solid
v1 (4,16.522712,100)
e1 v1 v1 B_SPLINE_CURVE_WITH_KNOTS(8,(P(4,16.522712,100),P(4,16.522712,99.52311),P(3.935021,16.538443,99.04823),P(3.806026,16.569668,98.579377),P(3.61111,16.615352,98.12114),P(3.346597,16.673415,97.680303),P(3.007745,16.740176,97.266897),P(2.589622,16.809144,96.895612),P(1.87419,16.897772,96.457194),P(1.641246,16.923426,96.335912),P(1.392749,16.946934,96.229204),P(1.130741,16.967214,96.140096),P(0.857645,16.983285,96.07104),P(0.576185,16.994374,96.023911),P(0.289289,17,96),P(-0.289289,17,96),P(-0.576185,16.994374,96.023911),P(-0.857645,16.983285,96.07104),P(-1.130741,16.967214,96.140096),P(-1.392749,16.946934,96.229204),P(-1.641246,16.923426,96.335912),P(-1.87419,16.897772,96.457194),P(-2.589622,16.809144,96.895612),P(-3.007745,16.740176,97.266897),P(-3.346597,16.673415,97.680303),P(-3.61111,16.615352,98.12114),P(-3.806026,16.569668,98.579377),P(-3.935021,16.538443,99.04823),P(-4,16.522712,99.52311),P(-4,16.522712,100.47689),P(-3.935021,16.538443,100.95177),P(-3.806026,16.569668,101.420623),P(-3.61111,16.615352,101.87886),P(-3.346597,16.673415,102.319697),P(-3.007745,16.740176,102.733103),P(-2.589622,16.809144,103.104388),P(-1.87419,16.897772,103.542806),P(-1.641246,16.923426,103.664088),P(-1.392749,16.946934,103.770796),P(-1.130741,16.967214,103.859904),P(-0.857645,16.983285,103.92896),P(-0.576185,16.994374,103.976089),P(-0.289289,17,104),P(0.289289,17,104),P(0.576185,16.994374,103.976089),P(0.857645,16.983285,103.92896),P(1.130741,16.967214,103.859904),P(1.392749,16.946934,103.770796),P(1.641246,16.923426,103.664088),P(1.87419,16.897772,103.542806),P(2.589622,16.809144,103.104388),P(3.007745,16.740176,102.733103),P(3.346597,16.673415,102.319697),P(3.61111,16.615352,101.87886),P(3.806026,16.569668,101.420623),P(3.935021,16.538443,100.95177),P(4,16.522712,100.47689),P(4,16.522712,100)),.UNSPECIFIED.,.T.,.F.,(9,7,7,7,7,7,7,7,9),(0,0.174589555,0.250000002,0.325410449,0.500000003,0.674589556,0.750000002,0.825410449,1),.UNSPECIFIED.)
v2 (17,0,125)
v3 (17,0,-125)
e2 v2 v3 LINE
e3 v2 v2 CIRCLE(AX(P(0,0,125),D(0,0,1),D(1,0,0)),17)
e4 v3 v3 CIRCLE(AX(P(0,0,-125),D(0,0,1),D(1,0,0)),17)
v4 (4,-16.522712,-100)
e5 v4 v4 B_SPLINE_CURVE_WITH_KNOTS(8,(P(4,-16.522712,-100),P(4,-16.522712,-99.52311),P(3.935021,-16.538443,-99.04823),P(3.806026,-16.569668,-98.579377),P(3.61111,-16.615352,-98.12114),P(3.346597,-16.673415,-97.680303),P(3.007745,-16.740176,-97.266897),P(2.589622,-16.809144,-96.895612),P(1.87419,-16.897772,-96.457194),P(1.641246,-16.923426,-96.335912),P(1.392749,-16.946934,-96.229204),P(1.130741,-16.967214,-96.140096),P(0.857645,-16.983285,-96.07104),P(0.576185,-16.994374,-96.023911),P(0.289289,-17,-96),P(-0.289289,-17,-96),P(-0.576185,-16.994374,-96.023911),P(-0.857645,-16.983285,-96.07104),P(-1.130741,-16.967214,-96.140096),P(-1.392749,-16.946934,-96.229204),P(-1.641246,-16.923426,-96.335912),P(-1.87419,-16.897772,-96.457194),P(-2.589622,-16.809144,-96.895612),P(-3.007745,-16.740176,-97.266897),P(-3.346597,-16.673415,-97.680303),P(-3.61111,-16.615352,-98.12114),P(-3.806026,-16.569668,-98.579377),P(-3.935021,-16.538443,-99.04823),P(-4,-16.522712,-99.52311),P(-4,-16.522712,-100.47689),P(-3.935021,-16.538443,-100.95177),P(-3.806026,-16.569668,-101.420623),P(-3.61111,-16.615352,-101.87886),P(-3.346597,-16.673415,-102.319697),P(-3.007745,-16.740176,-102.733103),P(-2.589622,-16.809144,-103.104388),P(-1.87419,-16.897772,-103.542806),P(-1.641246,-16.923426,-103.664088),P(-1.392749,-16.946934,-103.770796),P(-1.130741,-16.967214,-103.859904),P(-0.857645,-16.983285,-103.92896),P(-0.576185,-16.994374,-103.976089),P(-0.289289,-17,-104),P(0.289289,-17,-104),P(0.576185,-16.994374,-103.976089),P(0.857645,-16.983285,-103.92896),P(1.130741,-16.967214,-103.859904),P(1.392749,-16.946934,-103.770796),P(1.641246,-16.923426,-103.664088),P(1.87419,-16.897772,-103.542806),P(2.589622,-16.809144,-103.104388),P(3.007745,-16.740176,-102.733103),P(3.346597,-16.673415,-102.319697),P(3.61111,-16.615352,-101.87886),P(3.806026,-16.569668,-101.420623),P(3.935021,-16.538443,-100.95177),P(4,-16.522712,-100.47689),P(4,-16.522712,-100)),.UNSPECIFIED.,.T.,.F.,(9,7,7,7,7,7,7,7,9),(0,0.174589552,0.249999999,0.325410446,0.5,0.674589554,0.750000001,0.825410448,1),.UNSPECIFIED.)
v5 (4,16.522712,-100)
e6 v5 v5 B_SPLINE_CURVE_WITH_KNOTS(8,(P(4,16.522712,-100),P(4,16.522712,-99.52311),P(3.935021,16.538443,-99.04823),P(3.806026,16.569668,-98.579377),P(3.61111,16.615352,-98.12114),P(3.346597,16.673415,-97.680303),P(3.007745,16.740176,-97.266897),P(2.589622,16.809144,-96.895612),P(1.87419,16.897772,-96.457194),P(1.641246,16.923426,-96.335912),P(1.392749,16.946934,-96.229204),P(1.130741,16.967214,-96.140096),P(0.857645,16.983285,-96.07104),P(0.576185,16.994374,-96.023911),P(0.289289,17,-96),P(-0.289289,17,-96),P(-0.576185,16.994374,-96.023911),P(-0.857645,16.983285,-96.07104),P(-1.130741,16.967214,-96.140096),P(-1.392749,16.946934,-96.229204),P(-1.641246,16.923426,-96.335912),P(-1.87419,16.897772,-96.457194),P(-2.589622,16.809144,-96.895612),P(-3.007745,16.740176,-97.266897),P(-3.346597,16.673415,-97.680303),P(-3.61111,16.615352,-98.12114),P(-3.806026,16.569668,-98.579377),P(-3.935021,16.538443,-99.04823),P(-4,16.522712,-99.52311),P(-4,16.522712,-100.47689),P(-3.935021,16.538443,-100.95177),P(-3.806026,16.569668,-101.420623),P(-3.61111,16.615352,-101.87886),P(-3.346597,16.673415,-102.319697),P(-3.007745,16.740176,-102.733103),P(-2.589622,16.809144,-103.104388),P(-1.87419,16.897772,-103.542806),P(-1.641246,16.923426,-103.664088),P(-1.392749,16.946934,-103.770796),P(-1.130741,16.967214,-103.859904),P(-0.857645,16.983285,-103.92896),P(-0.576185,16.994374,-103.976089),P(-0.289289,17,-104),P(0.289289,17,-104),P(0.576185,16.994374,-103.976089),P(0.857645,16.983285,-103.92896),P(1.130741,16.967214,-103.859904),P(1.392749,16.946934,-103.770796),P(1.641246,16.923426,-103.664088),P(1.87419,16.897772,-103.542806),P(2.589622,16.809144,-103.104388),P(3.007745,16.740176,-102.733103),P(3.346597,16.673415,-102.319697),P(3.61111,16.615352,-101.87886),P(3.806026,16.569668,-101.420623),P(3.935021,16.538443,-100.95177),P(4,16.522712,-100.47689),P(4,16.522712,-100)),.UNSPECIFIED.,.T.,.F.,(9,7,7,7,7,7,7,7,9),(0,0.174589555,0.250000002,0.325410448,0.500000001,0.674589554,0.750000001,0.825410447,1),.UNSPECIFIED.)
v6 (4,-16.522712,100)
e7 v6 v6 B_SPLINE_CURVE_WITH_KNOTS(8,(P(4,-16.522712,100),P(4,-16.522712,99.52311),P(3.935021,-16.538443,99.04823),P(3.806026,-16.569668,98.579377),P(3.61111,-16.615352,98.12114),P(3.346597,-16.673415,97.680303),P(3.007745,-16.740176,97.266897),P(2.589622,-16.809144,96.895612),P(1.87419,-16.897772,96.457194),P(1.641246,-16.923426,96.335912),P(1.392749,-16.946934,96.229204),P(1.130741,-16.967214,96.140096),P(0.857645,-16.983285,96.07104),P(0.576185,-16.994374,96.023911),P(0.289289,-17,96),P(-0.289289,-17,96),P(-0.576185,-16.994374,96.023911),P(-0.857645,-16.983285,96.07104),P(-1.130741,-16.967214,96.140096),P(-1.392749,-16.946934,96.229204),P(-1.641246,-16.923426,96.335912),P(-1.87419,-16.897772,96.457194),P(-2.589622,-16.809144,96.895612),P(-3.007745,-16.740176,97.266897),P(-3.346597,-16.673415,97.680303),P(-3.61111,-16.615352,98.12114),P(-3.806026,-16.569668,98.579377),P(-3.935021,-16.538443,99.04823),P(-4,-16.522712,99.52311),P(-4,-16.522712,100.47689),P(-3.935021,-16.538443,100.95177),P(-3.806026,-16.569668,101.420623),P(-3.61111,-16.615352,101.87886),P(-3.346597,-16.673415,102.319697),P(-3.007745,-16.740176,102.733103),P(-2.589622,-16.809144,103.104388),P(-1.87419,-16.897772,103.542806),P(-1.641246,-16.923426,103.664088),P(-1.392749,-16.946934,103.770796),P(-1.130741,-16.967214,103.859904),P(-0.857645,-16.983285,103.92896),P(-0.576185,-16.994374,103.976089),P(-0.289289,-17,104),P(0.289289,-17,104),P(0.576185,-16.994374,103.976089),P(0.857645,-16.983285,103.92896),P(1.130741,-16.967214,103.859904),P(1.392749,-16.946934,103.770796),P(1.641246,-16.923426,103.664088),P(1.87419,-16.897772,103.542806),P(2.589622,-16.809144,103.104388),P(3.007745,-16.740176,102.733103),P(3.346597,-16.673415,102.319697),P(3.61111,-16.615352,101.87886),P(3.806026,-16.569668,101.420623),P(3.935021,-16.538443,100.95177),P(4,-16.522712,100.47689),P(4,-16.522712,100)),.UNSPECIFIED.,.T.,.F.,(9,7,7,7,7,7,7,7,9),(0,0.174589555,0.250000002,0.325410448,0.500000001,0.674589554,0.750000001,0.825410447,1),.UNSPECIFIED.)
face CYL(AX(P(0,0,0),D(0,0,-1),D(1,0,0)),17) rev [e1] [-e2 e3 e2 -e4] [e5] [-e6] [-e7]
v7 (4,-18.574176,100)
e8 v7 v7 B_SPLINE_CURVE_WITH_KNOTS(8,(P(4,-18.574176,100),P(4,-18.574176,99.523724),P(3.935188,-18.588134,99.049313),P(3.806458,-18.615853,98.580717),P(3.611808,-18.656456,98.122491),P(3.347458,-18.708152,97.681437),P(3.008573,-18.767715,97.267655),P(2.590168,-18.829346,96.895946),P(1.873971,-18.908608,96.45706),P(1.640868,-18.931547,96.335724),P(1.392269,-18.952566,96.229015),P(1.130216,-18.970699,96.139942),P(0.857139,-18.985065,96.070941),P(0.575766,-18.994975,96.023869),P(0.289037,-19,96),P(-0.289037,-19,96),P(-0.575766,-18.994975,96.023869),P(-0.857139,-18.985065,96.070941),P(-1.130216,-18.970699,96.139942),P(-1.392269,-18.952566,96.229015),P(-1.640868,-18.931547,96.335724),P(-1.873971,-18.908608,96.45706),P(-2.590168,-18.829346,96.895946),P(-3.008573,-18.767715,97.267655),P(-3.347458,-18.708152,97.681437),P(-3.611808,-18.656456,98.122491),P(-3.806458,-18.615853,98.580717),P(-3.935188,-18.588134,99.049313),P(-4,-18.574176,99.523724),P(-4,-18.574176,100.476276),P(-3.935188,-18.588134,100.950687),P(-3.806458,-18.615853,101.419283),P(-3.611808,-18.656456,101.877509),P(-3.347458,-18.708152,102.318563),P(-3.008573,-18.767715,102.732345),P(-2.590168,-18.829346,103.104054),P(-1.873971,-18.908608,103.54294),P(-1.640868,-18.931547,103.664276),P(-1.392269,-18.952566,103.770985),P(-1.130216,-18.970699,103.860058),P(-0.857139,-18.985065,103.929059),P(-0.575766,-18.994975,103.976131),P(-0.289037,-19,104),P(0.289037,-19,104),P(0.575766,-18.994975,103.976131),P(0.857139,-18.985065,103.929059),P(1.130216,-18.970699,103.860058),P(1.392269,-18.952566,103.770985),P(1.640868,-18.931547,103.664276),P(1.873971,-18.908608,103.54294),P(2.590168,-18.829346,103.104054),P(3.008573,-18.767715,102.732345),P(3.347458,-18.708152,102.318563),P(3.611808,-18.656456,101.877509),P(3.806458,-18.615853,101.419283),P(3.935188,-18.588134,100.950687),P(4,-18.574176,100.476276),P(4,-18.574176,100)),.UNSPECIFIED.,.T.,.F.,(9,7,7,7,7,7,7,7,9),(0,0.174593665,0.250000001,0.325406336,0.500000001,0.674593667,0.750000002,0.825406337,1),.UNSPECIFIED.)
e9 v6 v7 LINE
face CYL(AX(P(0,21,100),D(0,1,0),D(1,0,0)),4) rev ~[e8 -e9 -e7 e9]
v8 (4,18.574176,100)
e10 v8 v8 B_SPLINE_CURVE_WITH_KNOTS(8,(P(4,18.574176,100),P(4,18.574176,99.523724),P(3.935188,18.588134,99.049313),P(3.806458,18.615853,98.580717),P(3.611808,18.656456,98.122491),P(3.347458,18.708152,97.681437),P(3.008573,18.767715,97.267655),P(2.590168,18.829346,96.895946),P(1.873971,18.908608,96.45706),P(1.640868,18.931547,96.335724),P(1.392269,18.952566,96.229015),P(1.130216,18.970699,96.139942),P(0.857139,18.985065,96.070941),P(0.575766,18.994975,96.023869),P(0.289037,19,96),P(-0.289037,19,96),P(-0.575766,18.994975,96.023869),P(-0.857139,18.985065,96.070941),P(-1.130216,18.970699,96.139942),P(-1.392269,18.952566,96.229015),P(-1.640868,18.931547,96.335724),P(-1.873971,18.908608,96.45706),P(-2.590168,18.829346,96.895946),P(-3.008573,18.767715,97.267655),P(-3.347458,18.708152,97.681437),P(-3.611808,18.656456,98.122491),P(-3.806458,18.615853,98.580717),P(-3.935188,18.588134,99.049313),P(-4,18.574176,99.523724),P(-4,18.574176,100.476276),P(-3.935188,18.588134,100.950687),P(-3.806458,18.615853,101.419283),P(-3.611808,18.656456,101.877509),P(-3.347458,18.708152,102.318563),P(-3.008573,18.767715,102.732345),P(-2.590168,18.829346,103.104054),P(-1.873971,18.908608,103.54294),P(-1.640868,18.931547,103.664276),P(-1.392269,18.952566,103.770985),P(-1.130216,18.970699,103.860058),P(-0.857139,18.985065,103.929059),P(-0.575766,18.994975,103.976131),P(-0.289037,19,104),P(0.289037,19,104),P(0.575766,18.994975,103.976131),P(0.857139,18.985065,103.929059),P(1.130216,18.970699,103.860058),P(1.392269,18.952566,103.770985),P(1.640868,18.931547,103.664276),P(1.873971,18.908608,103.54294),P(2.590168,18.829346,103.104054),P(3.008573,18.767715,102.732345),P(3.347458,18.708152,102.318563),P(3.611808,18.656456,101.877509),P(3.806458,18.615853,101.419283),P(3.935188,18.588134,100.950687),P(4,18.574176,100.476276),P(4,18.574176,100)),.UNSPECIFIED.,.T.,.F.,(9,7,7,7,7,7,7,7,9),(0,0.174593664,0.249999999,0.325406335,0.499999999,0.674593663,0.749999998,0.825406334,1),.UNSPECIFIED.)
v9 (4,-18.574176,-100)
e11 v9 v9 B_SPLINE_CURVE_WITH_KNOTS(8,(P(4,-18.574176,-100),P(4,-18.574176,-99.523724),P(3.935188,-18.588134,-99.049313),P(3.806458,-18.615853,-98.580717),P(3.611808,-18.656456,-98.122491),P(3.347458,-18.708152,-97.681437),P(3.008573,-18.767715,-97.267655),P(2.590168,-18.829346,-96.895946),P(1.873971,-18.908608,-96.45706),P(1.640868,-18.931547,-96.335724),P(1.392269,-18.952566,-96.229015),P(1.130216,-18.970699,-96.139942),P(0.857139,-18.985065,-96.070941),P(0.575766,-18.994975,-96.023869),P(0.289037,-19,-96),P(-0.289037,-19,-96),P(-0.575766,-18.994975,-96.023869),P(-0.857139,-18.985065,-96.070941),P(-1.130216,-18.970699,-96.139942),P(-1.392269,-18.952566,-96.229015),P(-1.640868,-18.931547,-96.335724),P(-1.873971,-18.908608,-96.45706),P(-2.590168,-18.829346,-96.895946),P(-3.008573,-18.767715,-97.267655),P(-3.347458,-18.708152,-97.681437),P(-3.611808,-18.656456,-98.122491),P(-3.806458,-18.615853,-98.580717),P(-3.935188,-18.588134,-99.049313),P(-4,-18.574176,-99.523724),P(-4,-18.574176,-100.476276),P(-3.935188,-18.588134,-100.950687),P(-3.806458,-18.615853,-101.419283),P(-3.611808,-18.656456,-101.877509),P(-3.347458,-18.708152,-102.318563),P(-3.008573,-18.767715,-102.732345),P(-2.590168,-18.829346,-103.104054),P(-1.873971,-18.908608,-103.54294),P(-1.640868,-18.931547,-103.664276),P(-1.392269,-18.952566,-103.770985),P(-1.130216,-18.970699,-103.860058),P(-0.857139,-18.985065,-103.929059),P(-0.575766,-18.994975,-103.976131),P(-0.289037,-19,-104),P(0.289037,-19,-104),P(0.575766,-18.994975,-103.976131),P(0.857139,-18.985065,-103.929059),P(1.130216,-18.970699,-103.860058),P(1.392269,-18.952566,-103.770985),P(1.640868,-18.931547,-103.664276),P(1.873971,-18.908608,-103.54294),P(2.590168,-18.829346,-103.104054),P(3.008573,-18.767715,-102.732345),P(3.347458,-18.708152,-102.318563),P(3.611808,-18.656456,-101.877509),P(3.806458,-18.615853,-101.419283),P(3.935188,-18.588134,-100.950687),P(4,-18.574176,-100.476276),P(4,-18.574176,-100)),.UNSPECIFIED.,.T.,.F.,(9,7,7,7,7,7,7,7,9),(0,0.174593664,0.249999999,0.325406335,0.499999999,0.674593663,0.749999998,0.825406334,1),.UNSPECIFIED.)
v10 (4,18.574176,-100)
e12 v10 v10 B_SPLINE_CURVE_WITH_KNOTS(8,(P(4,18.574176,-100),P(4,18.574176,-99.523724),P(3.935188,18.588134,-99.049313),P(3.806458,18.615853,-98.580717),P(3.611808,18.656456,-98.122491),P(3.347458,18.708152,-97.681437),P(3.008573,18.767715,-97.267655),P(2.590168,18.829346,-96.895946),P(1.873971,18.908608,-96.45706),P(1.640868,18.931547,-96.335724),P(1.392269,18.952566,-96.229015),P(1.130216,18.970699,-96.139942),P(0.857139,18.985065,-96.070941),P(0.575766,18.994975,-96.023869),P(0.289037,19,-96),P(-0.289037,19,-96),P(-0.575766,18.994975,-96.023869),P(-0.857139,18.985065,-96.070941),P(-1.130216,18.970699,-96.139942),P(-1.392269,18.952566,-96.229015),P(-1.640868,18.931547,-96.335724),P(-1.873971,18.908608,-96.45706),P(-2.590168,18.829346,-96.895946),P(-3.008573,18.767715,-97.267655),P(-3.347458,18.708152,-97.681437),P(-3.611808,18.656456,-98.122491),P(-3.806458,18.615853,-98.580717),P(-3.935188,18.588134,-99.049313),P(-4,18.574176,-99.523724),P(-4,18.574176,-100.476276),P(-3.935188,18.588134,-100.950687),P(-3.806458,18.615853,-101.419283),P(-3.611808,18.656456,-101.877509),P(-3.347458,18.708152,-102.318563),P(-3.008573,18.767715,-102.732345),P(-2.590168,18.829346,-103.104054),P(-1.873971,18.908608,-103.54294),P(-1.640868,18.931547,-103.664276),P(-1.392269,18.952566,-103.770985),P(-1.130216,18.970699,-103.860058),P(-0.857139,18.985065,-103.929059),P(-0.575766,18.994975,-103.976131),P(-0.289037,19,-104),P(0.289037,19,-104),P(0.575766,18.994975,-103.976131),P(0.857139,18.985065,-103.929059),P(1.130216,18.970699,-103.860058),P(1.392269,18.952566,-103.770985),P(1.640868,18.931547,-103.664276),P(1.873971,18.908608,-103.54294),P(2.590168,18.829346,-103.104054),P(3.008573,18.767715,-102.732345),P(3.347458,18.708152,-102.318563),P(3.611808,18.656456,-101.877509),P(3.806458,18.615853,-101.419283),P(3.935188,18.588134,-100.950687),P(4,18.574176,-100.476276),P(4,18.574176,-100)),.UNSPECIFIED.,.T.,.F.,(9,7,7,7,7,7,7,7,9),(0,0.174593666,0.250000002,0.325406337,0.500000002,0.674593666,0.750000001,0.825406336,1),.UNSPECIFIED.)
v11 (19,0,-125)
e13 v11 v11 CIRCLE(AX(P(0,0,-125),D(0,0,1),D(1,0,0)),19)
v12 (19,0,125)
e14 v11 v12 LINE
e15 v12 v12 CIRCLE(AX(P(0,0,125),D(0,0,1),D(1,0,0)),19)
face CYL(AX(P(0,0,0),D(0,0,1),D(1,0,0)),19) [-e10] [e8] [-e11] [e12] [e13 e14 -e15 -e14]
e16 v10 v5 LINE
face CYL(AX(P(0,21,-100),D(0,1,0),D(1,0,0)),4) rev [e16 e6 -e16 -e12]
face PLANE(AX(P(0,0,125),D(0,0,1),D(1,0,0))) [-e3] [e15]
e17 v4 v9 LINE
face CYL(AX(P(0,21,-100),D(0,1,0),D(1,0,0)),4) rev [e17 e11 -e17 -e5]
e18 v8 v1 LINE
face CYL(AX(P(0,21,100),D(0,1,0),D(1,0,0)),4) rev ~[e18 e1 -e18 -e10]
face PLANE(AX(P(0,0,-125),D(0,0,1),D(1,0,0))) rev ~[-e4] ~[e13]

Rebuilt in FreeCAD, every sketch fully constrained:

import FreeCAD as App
import Part
import Sketcher
Q = App.Units.Quantity

doc = App.newDocument("Part")
params = doc.addObject("Spreadsheet::Sheet", "Params")
for row, (alias, value) in enumerate([
    ("sketch1_diameter", "38 mm"),
    ("sketch1_diameter2", "34 mm"),
    ("pad1_length", "250 mm"),
    ("sketch2_diameter", "8 mm"),
], start=1):
    params.set(f"A{row}", alias)
    params.set(f"B{row}", "=" + value)
    params.setAlias(f"B{row}", alias)

body = doc.addObject("PartDesign::Body", "Body")

# Sketch on XY plane
sketch1 = body.newObject("Sketcher::SketchObject", "Sketch")
sketch1.AttachmentSupport = (doc.getObject("XY_Plane"), [""])
sketch1.MapMode = "FlatFace"
sketch1.addGeometry(Part.Circle(App.Vector(0, 0, 0), App.Vector(0, 0, 1), 19), False)
sketch1.addGeometry(Part.Circle(App.Vector(0, 0, 0), App.Vector(0, 0, 1), 17), False)
sketch1.addConstraint(Sketcher.Constraint("Coincident", 0, 3, -1, 1))
sketch1.addConstraint(Sketcher.Constraint("Coincident", 1, 3, -1, 1))
sketch1.addConstraint(Sketcher.Constraint("Diameter", 0, Q("38 mm")))
sketch1.addConstraint(Sketcher.Constraint("Diameter", 1, Q("34 mm")))
sketch1.setExpression("Constraints[2]", "Params.sketch1_diameter")
sketch1.setExpression("Constraints[3]", "Params.sketch1_diameter2")
pad1 = body.newObject("PartDesign::Pad", "Pad")
pad1.Profile = sketch1
pad1.setExpression("Length", "Params.pad1_length")
pad1.Midplane = True

# Sketch on XZ plane
sketch2 = body.newObject("Sketcher::SketchObject", "Sketch001")
sketch2.AttachmentSupport = (doc.getObject("XZ_Plane"), [""])
sketch2.MapMode = "FlatFace"
sketch2.AttachmentOffset = App.Placement(App.Vector(0, 0, -21), App.Rotation())
sketch2.addGeometry(Part.Circle(App.Vector(0, 100, 0), App.Vector(0, 0, 1), 4), False)
sketch2.addConstraint(Sketcher.Constraint("PointOnObject", 0, 3, -2))
sketch2.addConstraint(Sketcher.Constraint("Diameter", 0, Q("8 mm")))
sketch2.addConstraint(Sketcher.Constraint("DistanceY", -1, 1, 0, 3, Q("100 mm")))
sketch2.setExpression("Constraints[1]", "Params.sketch2_diameter")
pocket1 = body.newObject("PartDesign::Pocket", "Pocket")
pocket1.Profile = sketch2
pocket1.Type = "ThroughAll"
pocket1.Reversed = True
doc.recompute()

mirrored = body.newObject("PartDesign::Mirrored", "Mirrored")
mirrored.Originals = [pocket1]
mirrored.MirrorPlane = (doc.getObject("XY_Plane"), [""])
body.Tip = mirrored

doc.recompute()
